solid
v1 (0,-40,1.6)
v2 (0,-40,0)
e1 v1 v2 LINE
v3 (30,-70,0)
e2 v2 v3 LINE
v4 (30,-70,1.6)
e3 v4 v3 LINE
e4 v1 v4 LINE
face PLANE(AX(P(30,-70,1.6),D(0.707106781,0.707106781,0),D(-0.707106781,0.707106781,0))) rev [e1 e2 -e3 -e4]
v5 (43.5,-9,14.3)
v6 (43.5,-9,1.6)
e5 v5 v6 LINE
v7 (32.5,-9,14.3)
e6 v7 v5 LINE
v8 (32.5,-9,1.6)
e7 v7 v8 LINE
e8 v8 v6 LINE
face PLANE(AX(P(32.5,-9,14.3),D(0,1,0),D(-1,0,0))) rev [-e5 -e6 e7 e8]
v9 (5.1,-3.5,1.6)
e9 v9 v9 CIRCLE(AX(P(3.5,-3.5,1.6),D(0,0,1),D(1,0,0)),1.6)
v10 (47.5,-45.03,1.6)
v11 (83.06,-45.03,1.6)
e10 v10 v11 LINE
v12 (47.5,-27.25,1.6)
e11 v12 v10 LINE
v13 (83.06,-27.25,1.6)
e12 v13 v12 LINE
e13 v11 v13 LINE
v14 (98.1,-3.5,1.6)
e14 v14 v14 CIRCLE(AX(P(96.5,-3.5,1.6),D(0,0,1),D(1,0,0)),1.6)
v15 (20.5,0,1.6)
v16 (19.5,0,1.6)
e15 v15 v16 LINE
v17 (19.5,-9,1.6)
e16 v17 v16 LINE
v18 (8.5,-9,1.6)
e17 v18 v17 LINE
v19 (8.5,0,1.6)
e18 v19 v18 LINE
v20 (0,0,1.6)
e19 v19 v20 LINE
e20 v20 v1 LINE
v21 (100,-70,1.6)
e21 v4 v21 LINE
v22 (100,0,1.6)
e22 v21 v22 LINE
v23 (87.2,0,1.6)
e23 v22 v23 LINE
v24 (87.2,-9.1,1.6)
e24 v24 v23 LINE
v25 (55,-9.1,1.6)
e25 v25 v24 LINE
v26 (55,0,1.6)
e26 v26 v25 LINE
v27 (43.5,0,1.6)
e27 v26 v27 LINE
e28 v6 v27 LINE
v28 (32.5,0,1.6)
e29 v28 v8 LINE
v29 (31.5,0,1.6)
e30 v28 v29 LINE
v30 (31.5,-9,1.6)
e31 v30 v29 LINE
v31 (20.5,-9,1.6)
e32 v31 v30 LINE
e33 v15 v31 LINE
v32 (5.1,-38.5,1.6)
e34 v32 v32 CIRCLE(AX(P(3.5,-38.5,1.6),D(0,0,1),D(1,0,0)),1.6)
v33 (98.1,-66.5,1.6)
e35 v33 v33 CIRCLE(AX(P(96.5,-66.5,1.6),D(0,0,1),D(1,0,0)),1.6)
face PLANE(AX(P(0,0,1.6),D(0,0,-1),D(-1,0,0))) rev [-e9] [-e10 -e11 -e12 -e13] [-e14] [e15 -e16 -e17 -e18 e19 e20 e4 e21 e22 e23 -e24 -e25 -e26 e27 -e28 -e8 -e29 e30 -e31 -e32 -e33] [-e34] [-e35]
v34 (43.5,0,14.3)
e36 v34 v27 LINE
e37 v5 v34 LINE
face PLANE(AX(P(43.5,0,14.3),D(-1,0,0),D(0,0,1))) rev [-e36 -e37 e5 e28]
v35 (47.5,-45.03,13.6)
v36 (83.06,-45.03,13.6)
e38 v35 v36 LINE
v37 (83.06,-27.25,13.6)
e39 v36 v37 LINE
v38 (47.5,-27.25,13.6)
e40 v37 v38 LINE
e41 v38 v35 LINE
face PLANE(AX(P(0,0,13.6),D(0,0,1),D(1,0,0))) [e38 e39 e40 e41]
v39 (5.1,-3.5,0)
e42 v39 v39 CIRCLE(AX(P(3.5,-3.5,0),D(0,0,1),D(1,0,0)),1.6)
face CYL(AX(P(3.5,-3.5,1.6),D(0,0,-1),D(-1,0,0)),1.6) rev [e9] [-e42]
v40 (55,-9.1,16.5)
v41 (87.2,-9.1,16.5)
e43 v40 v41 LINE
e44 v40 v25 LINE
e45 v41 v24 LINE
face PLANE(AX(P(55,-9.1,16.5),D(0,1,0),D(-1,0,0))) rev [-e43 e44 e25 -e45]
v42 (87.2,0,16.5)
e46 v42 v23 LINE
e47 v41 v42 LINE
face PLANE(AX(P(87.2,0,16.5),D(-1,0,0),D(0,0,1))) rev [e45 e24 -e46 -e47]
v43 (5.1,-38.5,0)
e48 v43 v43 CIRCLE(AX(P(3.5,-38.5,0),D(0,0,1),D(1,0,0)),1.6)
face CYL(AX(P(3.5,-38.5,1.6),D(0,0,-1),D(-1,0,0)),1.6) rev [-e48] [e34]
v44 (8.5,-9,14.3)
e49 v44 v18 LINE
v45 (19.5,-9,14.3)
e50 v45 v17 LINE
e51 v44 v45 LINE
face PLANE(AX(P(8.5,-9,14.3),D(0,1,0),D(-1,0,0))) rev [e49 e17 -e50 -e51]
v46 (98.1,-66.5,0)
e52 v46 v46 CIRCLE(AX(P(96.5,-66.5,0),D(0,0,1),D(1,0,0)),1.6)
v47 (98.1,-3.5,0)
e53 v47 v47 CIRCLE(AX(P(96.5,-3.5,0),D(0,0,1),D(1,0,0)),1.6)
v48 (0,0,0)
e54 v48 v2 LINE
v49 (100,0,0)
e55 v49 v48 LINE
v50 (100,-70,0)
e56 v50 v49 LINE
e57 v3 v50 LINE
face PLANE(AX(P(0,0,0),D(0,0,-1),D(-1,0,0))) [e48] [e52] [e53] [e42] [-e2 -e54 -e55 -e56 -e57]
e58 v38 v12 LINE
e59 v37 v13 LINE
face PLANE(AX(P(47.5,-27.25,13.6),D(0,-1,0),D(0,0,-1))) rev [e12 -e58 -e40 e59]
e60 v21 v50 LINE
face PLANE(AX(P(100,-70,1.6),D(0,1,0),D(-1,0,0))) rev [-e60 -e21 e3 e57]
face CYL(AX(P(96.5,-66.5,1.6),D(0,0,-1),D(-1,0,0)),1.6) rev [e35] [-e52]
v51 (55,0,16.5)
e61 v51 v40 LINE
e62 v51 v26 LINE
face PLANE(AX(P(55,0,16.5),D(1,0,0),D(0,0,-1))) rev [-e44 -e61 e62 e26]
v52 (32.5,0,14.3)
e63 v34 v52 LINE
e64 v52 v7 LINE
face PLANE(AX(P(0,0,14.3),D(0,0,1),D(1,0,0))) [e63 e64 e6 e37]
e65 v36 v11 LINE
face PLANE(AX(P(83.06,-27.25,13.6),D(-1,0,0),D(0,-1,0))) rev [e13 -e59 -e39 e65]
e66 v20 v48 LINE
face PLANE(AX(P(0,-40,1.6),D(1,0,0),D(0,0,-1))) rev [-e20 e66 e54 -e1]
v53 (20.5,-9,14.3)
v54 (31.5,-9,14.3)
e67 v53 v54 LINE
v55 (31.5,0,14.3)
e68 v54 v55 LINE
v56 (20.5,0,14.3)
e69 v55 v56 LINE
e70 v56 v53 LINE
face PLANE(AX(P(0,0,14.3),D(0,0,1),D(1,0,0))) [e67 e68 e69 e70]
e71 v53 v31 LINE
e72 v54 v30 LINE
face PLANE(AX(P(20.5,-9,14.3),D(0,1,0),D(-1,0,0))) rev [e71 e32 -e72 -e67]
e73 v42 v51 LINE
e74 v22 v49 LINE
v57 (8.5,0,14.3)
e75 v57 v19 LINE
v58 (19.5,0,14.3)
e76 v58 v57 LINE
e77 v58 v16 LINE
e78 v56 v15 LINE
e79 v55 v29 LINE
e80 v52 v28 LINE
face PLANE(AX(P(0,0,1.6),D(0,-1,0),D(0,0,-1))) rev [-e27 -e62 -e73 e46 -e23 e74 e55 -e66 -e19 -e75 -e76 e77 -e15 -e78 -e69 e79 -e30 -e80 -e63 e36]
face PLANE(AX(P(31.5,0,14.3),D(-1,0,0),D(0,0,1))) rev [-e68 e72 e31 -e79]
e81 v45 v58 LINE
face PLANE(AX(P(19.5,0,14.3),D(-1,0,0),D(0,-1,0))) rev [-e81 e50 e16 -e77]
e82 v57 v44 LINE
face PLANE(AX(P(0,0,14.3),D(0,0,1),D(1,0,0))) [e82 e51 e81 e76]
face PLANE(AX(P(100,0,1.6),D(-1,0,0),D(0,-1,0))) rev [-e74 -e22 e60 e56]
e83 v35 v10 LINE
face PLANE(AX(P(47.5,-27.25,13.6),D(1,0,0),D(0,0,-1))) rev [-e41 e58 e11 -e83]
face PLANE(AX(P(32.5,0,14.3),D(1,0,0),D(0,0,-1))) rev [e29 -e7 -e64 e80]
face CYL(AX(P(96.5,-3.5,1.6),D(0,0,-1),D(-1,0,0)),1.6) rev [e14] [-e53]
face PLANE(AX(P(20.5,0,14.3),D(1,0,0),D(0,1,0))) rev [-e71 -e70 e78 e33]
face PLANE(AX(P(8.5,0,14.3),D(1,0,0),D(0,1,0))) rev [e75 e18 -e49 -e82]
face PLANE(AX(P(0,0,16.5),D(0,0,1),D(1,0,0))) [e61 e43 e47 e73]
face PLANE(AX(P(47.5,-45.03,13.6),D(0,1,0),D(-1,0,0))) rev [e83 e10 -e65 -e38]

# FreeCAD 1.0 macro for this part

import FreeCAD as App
import Part
import Sketcher
from FreeCAD import Vector
Q = App.Units.Quantity


def add_polygon(sketch, points):
    """Adds a closed chain of lines whose ends are joined by coincident constraints."""
    first, n = sketch.GeometryCount, len(points)
    for a, b in zip(points, points[1:] + points[:1]):
        sketch.addGeometry(Part.LineSegment(App.Vector(*a, 0), App.Vector(*b, 0)), False)
    for i in range(n):
        sketch.addConstraint(Sketcher.Constraint("Coincident", first + i, 2, first + (i + 1) % n, 1))

doc = App.newDocument("Part")
body = doc.addObject("PartDesign::Body", "Body")

sketch1 = doc.addObject("Sketcher::SketchObject", "Sketch")
body.addObject(sketch1)
sketch1.AttachmentSupport = (doc.XY_Plane, [""])
sketch1.MapMode = "FlatFace"
add_polygon(sketch1, [(100, 0), (0, 0), (0, -40), (30, -70), (100, -70)])
sketch1.addGeometry(Part.Circle(Vector(96.5, -66.5, 0), Vector(0, 0, 1), 1.6), False)
sketch1.addGeometry(Part.Circle(Vector(3.5, -38.5, 0), Vector(0, 0, 1), 1.6), False)
sketch1.addGeometry(Part.Circle(Vector(96.5, -3.5, 0), Vector(0, 0, 1), 1.6), False)
sketch1.addGeometry(Part.Circle(Vector(3.5, -3.5, 0), Vector(0, 0, 1), 1.6), False)
sketch1.addConstraint([
    Sketcher.Constraint("Horizontal", 0),
    Sketcher.Constraint("Vertical", 1),
    Sketcher.Constraint("Horizontal", 3),
    Sketcher.Constraint("Vertical", 4),
    Sketcher.Constraint("Coincident", 0, 2, -1, 1),
    Sketcher.Constraint("Equal", 5, 6),
    Sketcher.Constraint("Equal", 6, 7),
    Sketcher.Constraint("Equal", 7, 8),
    Sketcher.Constraint("Horizontal", 7, 3, 8, 3),
    Sketcher.Constraint("Vertical", 5, 3, 7, 3),
    Sketcher.Constraint("Vertical", 6, 3, 8, 3),
    Sketcher.Constraint("Equal", 3, 4),
    Sketcher.Constraint("Diameter", 5, Q("3.2 mm")),
    Sketcher.Constraint("DistanceX", 0, 2, 0, 1, Q("100 mm")),
    Sketcher.Constraint("DistanceX", 3, 1, 3, 2, Q("70 mm")),
    Sketcher.Constraint("DistanceY", 1, 2, 1, 1, Q("40 mm")),
    Sketcher.Constraint("DistanceX", 6, 3, 5, 3, Q("93 mm")),
    Sketcher.Constraint("DistanceY", 5, 3, 6, 3, Q("28 mm")),
    Sketcher.Constraint("DistanceY", 5, 3, 7, 3, Q("63 mm")),
    Sketcher.Constraint("DistanceX", -1, 1, 5, 3, Q("96.5 mm")),
    Sketcher.Constraint("DistanceY", 5, 3, -1, 1, Q("66.5 mm")),
])
pad1 = doc.addObject("PartDesign::Pad", "Pad")
body.addObject(pad1)
pad1.Profile = sketch1
pad1.Length = 1.6

sketch2 = doc.addObject("Sketcher::SketchObject", "Sketch001")
body.addObject(sketch2)
sketch2.AttachmentSupport = (doc.XY_Plane, [""])
sketch2.MapMode = "FlatFace"
sketch2.AttachmentOffset = App.Placement(Vector(0, 0, 1.6), App.Rotation())
add_polygon(sketch2, [(8.5, 0), (8.5, -9), (19.5, -9), (19.5, 0)])
add_polygon(sketch2, [(20.5, 0), (20.5, -9), (31.5, -9), (31.5, 0)])
add_polygon(sketch2, [(32.5, 0), (32.5, -9), (43.5, -9), (43.5, 0)])
sketch2.addConstraint([
    Sketcher.Constraint("Vertical", 0),
    Sketcher.Constraint("Horizontal", 1),
    Sketcher.Constraint("Vertical", 2),
    Sketcher.Constraint("Horizontal", 3),
    Sketcher.Constraint("Vertical", 4),
    Sketcher.Constraint("Horizontal", 5),
    Sketcher.Constraint("Vertical", 6),
    Sketcher.Constraint("Horizontal", 7),
    Sketcher.Constraint("Vertical", 8),
    Sketcher.Constraint("Horizontal", 9),
    Sketcher.Constraint("Vertical", 10),
    Sketcher.Constraint("Horizontal", 11),
    Sketcher.Constraint("PointOnObject", 2, 2, -1),
    Sketcher.Constraint("PointOnObject", 6, 2, -1),
    Sketcher.Constraint("PointOnObject", 10, 2, -1),
    Sketcher.Constraint("Horizontal", 1, 2, 4, 2),
    Sketcher.Constraint("Horizontal", 5, 2, 8, 2),
    Sketcher.Constraint("Equal", 3, 5),
    Sketcher.Constraint("Equal", 7, 9),
    Sketcher.Constraint("DistanceX", 1, 1, 1, 2, Q("11 mm")),
    Sketcher.Constraint("DistanceY", 0, 2, 0, 1, Q("9 mm")),
    Sketcher.Constraint("DistanceX", 1, 2, 4, 2, Q("1 mm")),
    Sketcher.Constraint("DistanceX", 5, 2, 8, 2, Q("1 mm")),
    Sketcher.Constraint("DistanceX", -1, 1, 0, 2, Q("8.5 mm")),
])
pad2 = doc.addObject("PartDesign::Pad", "Pad001")
body.addObject(pad2)
pad2.Profile = sketch2
pad2.Length = 12.7

sketch3 = doc.addObject("Sketcher::SketchObject", "Sketch002")
body.addObject(sketch3)
sketch3.AttachmentSupport = (doc.XY_Plane, [""])
sketch3.MapMode = "FlatFace"
sketch3.AttachmentOffset = App.Placement(Vector(0, 0, 1.6), App.Rotation())
add_polygon(sketch3, [(55, 0), (55, -9.1), (87.2, -9.1), (87.2, 0)])
sketch3.addConstraint([
    Sketcher.Constraint("Vertical", 0),
    Sketcher.Constraint("Horizontal", 1),
    Sketcher.Constraint("Vertical", 2),
    Sketcher.Constraint("Horizontal", 3),
    Sketcher.Constraint("PointOnObject", 2, 2, -1),
    Sketcher.Constraint("DistanceX", 1, 1, 1, 2, Q("32.2 mm")),
    Sketcher.Constraint("DistanceY", 0, 2, 0, 1, Q("9.1 mm")),
    Sketcher.Constraint("DistanceX", -1, 1, 0, 2, Q("55 mm")),
])
pad3 = doc.addObject("PartDesign::Pad", "Pad002")
body.addObject(pad3)
pad3.Profile = sketch3
pad3.Length = 14.9

sketch4 = doc.addObject("Sketcher::SketchObject", "Sketch003")
body.addObject(sketch4)
sketch4.AttachmentSupport = (doc.XY_Plane, [""])
sketch4.MapMode = "FlatFace"
sketch4.AttachmentOffset = App.Placement(Vector(0, 0, 1.6), App.Rotation())
add_polygon(sketch4, [(47.5, -27.25), (47.5, -45.03), (83.06, -45.03), (83.06, -27.25)])
sketch4.addConstraint([
    Sketcher.Constraint("Vertical", 0),
    Sketcher.Constraint("Horizontal", 1),
    Sketcher.Constraint("Vertical", 2),
    Sketcher.Constraint("Horizontal", 3),
    Sketcher.Constraint("DistanceX", 1, 1, 1, 2, Q("35.56 mm")),
    Sketcher.Constraint("DistanceY", 0, 2, 0, 1, Q("17.78 mm")),
    Sketcher.Constraint("DistanceX", -1, 1, 0, 2, Q("47.5 mm")),
    Sketcher.Constraint("DistanceY", 0, 2, -1, 1, Q("45.03 mm")),
])
pad4 = doc.addObject("PartDesign::Pad", "Pad003")
body.addObject(pad4)
pad4.Profile = sketch4
pad4.Length = 12

doc.recompute()
